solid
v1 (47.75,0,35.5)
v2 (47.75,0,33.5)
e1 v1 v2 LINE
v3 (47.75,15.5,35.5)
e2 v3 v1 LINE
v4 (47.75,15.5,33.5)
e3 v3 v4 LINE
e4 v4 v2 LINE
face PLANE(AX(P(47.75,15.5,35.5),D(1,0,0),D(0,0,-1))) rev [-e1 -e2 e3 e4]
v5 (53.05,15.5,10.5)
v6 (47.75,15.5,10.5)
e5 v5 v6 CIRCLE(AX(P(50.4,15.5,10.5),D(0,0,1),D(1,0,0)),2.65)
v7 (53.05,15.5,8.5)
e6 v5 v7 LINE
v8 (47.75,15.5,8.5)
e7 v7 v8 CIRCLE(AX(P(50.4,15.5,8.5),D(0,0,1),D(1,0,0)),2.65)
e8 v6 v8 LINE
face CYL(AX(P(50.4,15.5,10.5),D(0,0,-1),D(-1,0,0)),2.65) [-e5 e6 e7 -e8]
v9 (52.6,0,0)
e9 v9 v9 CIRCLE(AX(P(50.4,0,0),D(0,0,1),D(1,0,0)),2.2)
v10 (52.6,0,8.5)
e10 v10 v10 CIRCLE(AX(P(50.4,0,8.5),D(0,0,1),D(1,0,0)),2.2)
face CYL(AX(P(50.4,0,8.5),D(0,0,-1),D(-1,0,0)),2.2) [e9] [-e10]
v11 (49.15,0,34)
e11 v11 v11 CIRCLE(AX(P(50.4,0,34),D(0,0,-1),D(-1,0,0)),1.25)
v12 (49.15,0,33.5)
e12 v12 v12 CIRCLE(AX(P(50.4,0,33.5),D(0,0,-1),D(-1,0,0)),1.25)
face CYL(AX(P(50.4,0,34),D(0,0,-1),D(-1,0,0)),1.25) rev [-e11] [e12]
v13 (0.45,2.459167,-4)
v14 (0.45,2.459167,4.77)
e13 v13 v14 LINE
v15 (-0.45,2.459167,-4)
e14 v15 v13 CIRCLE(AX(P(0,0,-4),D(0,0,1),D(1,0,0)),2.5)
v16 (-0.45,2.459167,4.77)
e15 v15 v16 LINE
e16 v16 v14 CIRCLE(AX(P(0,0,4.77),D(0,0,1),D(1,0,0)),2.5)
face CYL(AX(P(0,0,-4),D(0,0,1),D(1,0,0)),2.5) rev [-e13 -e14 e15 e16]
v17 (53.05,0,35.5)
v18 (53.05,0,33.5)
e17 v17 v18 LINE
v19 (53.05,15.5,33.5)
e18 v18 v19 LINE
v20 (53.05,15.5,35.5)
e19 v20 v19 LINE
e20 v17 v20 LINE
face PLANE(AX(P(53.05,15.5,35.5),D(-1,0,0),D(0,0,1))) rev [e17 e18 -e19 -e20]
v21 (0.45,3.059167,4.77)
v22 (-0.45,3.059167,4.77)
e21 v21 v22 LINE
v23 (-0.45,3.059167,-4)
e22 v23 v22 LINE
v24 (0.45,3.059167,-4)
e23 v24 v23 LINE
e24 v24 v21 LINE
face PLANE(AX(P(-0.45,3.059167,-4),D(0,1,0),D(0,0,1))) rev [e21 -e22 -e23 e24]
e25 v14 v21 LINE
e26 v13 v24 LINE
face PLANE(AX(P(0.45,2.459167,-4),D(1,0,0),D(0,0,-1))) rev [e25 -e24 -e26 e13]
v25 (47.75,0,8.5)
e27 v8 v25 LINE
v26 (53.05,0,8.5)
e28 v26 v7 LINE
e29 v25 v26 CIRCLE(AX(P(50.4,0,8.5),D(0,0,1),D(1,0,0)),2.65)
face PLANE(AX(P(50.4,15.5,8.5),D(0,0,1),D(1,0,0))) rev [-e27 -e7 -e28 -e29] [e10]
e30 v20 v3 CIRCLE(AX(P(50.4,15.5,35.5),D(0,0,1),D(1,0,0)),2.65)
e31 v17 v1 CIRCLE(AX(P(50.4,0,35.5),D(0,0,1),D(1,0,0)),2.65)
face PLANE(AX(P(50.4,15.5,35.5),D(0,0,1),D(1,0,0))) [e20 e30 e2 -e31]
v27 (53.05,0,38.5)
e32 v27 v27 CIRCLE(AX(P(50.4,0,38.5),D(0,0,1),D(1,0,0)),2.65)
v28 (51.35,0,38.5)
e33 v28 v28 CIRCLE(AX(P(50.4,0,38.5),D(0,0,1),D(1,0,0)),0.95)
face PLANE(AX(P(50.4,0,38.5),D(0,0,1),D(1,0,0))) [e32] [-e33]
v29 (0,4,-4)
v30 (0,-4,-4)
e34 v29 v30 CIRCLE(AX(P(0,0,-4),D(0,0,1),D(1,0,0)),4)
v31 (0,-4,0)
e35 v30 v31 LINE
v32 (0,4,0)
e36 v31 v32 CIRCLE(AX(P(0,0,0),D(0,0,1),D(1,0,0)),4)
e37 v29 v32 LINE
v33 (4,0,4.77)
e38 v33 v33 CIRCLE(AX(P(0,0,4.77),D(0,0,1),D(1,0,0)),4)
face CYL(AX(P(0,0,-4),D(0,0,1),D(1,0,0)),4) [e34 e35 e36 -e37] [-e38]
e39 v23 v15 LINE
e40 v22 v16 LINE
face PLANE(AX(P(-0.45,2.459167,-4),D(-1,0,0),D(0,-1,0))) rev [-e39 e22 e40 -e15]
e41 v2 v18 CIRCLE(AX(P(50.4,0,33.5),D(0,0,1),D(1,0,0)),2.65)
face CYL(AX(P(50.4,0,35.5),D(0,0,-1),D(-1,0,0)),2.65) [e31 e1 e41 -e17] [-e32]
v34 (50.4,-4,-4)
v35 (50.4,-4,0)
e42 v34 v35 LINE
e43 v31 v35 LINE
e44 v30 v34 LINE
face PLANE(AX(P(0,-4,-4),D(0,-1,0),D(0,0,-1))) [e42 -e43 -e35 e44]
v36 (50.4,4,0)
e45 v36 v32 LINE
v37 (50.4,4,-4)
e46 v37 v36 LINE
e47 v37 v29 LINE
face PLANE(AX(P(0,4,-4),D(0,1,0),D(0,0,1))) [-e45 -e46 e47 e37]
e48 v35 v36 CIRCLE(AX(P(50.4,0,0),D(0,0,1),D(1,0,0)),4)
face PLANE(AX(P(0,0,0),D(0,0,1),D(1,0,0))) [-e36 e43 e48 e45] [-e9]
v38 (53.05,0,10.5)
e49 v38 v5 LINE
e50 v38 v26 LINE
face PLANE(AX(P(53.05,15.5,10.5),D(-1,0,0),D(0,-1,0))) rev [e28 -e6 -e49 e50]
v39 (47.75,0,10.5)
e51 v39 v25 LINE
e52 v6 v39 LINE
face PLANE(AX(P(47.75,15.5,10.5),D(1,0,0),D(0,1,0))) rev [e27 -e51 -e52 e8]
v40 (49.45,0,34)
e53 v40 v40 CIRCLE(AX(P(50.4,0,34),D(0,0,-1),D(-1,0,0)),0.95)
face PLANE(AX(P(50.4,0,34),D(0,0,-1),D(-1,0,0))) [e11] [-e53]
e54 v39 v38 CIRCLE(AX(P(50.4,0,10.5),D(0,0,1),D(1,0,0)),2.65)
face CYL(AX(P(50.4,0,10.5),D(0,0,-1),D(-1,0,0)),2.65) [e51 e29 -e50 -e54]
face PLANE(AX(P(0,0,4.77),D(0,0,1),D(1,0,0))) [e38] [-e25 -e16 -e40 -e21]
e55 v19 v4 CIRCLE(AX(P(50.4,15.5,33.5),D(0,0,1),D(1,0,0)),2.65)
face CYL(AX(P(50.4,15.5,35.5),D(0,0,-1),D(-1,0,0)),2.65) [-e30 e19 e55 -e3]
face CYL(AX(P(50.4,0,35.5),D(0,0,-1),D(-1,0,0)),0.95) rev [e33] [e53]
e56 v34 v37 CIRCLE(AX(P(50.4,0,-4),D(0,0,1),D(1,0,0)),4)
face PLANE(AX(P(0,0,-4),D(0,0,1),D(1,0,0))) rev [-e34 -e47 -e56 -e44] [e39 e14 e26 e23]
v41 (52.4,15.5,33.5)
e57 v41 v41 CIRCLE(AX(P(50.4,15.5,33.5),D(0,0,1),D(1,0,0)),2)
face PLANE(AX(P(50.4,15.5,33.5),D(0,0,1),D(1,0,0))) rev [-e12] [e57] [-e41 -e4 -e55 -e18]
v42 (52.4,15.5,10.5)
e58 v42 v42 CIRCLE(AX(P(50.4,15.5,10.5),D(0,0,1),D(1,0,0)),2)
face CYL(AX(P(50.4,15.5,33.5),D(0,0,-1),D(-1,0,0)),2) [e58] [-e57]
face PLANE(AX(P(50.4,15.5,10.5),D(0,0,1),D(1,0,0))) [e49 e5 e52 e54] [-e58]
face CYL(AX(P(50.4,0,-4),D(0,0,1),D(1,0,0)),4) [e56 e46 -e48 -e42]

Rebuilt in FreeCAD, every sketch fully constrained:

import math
import FreeCAD as App
import Part
import Sketcher
Q = App.Units.Quantity

doc = App.newDocument("Part")
body = doc.addObject("PartDesign::Body", "Body")

sketch1 = doc.addObject("Sketcher::SketchObject", "Sketch")
body.addObject(sketch1)
sketch1.AttachmentSupport = (doc.XY_Plane, [""])
sketch1.MapMode = "FlatFace"
sketch1.addGeometry([
    Part.LineSegment(App.Vector(50.4, 4, 0), App.Vector(0, 4, 0)),
    Part.ArcOfCircle(Part.Circle(App.Vector(0, 0, 0), App.Vector(0, 0, 1), 4), math.radians(90), math.radians(270)),
    Part.LineSegment(App.Vector(0, -4, 0), App.Vector(50.4, -4, 0)),
    Part.ArcOfCircle(Part.Circle(App.Vector(50.4, 0, 0), App.Vector(0, 0, 1), 4), math.radians(-90), math.radians(90)),
    Part.LineSegment(App.Vector(-0.5, 2.5, 0), App.Vector(-0.5, 3.1, 0)),
    Part.LineSegment(App.Vector(-0.5, 3.1, 0), App.Vector(0.5, 3.1, 0)),
    Part.LineSegment(App.Vector(0.5, 3.1, 0), App.Vector(0.5, 2.5, 0)),
    Part.ArcOfCircle(Part.Circle(App.Vector(0, 0, 0), App.Vector(0, 0, 1), 2.5), math.radians(100), math.radians(440)),
], False)
sketch1.addConstraint([
    Sketcher.Constraint("Tangent", 0, 2, 1, 1),
    Sketcher.Constraint("Tangent", 1, 2, 2, 1),
    Sketcher.Constraint("Tangent", 2, 2, 3, 1),
    Sketcher.Constraint("Tangent", 3, 2, 0, 1),
    Sketcher.Constraint("Coincident", 4, 2, 5, 1),
    Sketcher.Constraint("Coincident", 5, 2, 6, 1),
    Sketcher.Constraint("Coincident", 6, 2, 7, 2),
    Sketcher.Constraint("Coincident", 7, 1, 4, 1),
    Sketcher.Constraint("Horizontal", 0),
    Sketcher.Constraint("Horizontal", 2),
    Sketcher.Constraint("Vertical", 4),
    Sketcher.Constraint("Horizontal", 5),
    Sketcher.Constraint("Vertical", 6),
    Sketcher.Constraint("Coincident", 1, 3, -1, 1),
    Sketcher.Constraint("Coincident", 7, 3, -1, 1),
    Sketcher.Constraint("Horizontal", 6, 2, 7, 1),
    Sketcher.Constraint("Radius", 1, Q("4 mm")),
    Sketcher.Constraint("Radius", 7, Q("2.5 mm")),
    Sketcher.Constraint("DistanceX", 0, 2, 0, 1, Q("50.4 mm")),
    Sketcher.Constraint("DistanceX", 5, 1, 5, 2, Q("0.9 mm")),
    Sketcher.Constraint("DistanceY", 4, 1, 4, 2, Q("0.6 mm")),
])
pad1 = doc.addObject("PartDesign::Pad", "Pad")
body.addObject(pad1)
pad1.Profile = sketch1
pad1.Length = 4
pad1.Reversed = True

sketch2 = doc.addObject("Sketcher::SketchObject", "Sketch001")
body.addObject(sketch2)
sketch2.AttachmentSupport = (doc.XY_Plane, [""])
sketch2.MapMode = "FlatFace"
sketch2.AttachmentOffset = App.Placement(App.Vector(0, 0, 4.77), App.Rotation())
sketch2.addGeometry([
    Part.Circle(App.Vector(0, 0, 0), App.Vector(0, 0, 1), 4),
    Part.LineSegment(App.Vector(-0.5, 2.5, 0), App.Vector(-0.5, 3.1, 0)),
    Part.LineSegment(App.Vector(-0.5, 3.1, 0), App.Vector(0.5, 3.1, 0)),
    Part.LineSegment(App.Vector(0.5, 3.1, 0), App.Vector(0.5, 2.5, 0)),
    Part.ArcOfCircle(Part.Circle(App.Vector(0, 0, 0), App.Vector(0, 0, 1), 2.5), math.radians(100), math.radians(440)),
], False)
sketch2.addConstraint([
    Sketcher.Constraint("Coincident", 1, 2, 2, 1),
    Sketcher.Constraint("Coincident", 2, 2, 3, 1),
    Sketcher.Constraint("Coincident", 3, 2, 4, 2),
    Sketcher.Constraint("Coincident", 4, 1, 1, 1),
    Sketcher.Constraint("Vertical", 1),
    Sketcher.Constraint("Horizontal", 2),
    Sketcher.Constraint("Vertical", 3),
    Sketcher.Constraint("Coincident", 0, 3, -1, 1),
    Sketcher.Constraint("Coincident", 4, 3, -1, 1),
    Sketcher.Constraint("Horizontal", 3, 2, 4, 1),
    Sketcher.Constraint("Diameter", 0, Q("8 mm")),
    Sketcher.Constraint("Radius", 4, Q("2.5 mm")),
    Sketcher.Constraint("DistanceX", 2, 1, 2, 2, Q("0.9 mm")),
    Sketcher.Constraint("DistanceY", 1, 1, 1, 2, Q("0.6 mm")),
])
pad2 = doc.addObject("PartDesign::Pad", "Pad001")
body.addObject(pad2)
pad2.Profile = sketch2
pad2.Length = 4.77
pad2.Reversed = True

sketch3 = doc.addObject("Sketcher::SketchObject", "Sketch002")
body.addObject(sketch3)
sketch3.AttachmentSupport = (doc.XY_Plane, [""])
sketch3.MapMode = "FlatFace"
sketch3.addGeometry(Part.Circle(App.Vector(50.4, 0, 0), App.Vector(0, 0, 1), 2.2), False)
sketch3.addConstraint([
    Sketcher.Constraint("PointOnObject", 0, 3, -1),
    Sketcher.Constraint("Diameter", 0, Q("4.4 mm")),
    Sketcher.Constraint("DistanceX", -1, 1, 0, 3, Q("50.4 mm")),
])
pad3 = doc.addObject("PartDesign::Pad", "Pad002")
body.addObject(pad3)
pad3.Profile = sketch3
pad3.Length = 8.5

sketch4 = doc.addObject("Sketcher::SketchObject", "Sketch003")
body.addObject(sketch4)
sketch4.AttachmentSupport = (doc.XY_Plane, [""])
sketch4.MapMode = "FlatFace"
sketch4.AttachmentOffset = App.Placement(App.Vector(0, 0, 8.5), App.Rotation())
sketch4.addGeometry([
    Part.LineSegment(App.Vector(47.8, 15.5, 0), App.Vector(47.8, 0, 0)),
    Part.ArcOfCircle(Part.Circle(App.Vector(50.4, 0, 0), App.Vector(0, 0, 1), 2.6), math.radians(180), math.radians(360)),
    Part.LineSegment(App.Vector(53, 0, 0), App.Vector(53, 15.5, 0)),
    Part.ArcOfCircle(Part.Circle(App.Vector(50.4, 15.5, 0), App.Vector(0, 0, 1), 2.6), math.radians(0), math.radians(180)),
], False)
sketch4.addConstraint([
    Sketcher.Constraint("Tangent", 0, 2, 1, 1),
    Sketcher.Constraint("Tangent", 1, 2, 2, 1),
    Sketcher.Constraint("Tangent", 2, 2, 3, 1),
    Sketcher.Constraint("Tangent", 3, 2, 0, 1),
    Sketcher.Constraint("Vertical", 0),
    Sketcher.Constraint("Vertical", 2),
    Sketcher.Constraint("PointOnObject", 1, 3, -1),
    Sketcher.Constraint("Radius", 1, Q("2.65 mm")),
    Sketcher.Constraint("DistanceY", 0, 2, 0, 1, Q("15.5 mm")),
    Sketcher.Constraint("DistanceX", -1, 1, 1, 3, Q("50.4 mm")),
])
pad4 = doc.addObject("PartDesign::Pad", "Pad003")
body.addObject(pad4)
pad4.Profile = sketch4
pad4.Length = 2

sketch5 = doc.addObject("Sketcher::SketchObject", "Sketch004")
body.addObject(sketch5)
sketch5.AttachmentSupport = (doc.XY_Plane, [""])
sketch5.MapMode = "FlatFace"
sketch5.AttachmentOffset = App.Placement(App.Vector(0, 0, 10.5), App.Rotation())
sketch5.addGeometry(Part.Circle(App.Vector(50.4, 15.5, 0), App.Vector(0, 0, 1), 2), False)
sketch5.addConstraint([
    Sketcher.Constraint("Diameter", 0, Q("4 mm")),
    Sketcher.Constraint("DistanceX", -1, 1, 0, 3, Q("50.4 mm")),
    Sketcher.Constraint("DistanceY", -1, 1, 0, 3, Q("15.5 mm")),
])
pad5 = doc.addObject("PartDesign::Pad", "Pad004")
body.addObject(pad5)
pad5.Profile = sketch5
pad5.Length = 23

sketch6 = doc.addObject("Sketcher::SketchObject", "Sketch005")
body.addObject(sketch6)
sketch6.AttachmentSupport = (doc.XY_Plane, [""])
sketch6.MapMode = "FlatFace"
sketch6.AttachmentOffset = App.Placement(App.Vector(0, 0, 33.5), App.Rotation())
sketch6.addGeometry([
    Part.LineSegment(App.Vector(47.8, 15.5, 0), App.Vector(47.8, 0, 0)),
    Part.ArcOfCircle(Part.Circle(App.Vector(50.4, 0, 0), App.Vector(0, 0, 1), 2.6), math.radians(180), math.radians(360)),
    Part.LineSegment(App.Vector(53, 0, 0), App.Vector(53, 15.5, 0)),
    Part.ArcOfCircle(Part.Circle(App.Vector(50.4, 15.5, 0), App.Vector(0, 0, 1), 2.6), math.radians(0), math.radians(180)),
    Part.Circle(App.Vector(50.4, 0, 0), App.Vector(0, 0, 1), 0.9),
], False)
sketch6.addConstraint([
    Sketcher.Constraint("Tangent", 0, 2, 1, 1),
    Sketcher.Constraint("Tangent", 1, 2, 2, 1),
    Sketcher.Constraint("Tangent", 2, 2, 3, 1),
    Sketcher.Constraint("Tangent", 3, 2, 0, 1),
    Sketcher.Constraint("Vertical", 0),
    Sketcher.Constraint("Vertical", 2),
    Sketcher.Constraint("Coincident", 4, 3, 1, 3),
    Sketcher.Constraint("PointOnObject", 1, 3, -1),
    Sketcher.Constraint("Diameter", 4, Q("1.9 mm")),
    Sketcher.Constraint("Radius", 1, Q("2.65 mm")),
    Sketcher.Constraint("DistanceY", 0, 2, 0, 1, Q("15.5 mm")),
    Sketcher.Constraint("DistanceX", -1, 1, 1, 3, Q("50.4 mm")),
])
pad6 = doc.addObject("PartDesign::Pad", "Pad005")
body.addObject(pad6)
pad6.Profile = sketch6
pad6.Length = 2

sketch7 = doc.addObject("Sketcher::SketchObject", "Sketch006")
body.addObject(sketch7)
sketch7.AttachmentSupport = (doc.XY_Plane, [""])
sketch7.MapMode = "FlatFace"
sketch7.AttachmentOffset = App.Placement(App.Vector(0, 0, 35.5), App.Rotation())
sketch7.addGeometry([
    Part.Circle(App.Vector(50.4, 0, 0), App.Vector(0, 0, 1), 2.6),
    Part.Circle(App.Vector(50.4, 0, 0), App.Vector(0, 0, 1), 0.9),
], False)
sketch7.addConstraint([
    Sketcher.Constraint("Coincident", 1, 3, 0, 3),
    Sketcher.Constraint("PointOnObject", 0, 3, -1),
    Sketcher.Constraint("Diameter", 0, Q("5.3 mm")),
    Sketcher.Constraint("Diameter", 1, Q("1.9 mm")),
    Sketcher.Constraint("DistanceX", -1, 1, 0, 3, Q("50.4 mm")),
])
pad7 = doc.addObject("PartDesign::Pad", "Pad006")
body.addObject(pad7)
pad7.Profile = sketch7
pad7.Length = 3

sketch8 = doc.addObject("Sketcher::SketchObject", "Sketch007")
body.addObject(sketch8)
sketch8.AttachmentSupport = (doc.XY_Plane, [""])
sketch8.MapMode = "FlatFace"
sketch8.AttachmentOffset = App.Placement(App.Vector(0, 0, 33.5), App.Rotation())
sketch8.addGeometry(Part.Circle(App.Vector(50.4, 0, 0), App.Vector(0, 0, 1), 1.2), False)
sketch8.addConstraint([
    Sketcher.Constraint("PointOnObject", 0, 3, -1),
    Sketcher.Constraint("Diameter", 0, Q("2.5 mm")),
    Sketcher.Constraint("DistanceX", -1, 1, 0, 3, Q("50.4 mm")),
])
pocket1 = doc.addObject("PartDesign::Pocket", "Pocket")
body.addObject(pocket1)
pocket1.Profile = sketch8
pocket1.Length = 0.5
pocket1.Reversed = True

doc.recompute()
